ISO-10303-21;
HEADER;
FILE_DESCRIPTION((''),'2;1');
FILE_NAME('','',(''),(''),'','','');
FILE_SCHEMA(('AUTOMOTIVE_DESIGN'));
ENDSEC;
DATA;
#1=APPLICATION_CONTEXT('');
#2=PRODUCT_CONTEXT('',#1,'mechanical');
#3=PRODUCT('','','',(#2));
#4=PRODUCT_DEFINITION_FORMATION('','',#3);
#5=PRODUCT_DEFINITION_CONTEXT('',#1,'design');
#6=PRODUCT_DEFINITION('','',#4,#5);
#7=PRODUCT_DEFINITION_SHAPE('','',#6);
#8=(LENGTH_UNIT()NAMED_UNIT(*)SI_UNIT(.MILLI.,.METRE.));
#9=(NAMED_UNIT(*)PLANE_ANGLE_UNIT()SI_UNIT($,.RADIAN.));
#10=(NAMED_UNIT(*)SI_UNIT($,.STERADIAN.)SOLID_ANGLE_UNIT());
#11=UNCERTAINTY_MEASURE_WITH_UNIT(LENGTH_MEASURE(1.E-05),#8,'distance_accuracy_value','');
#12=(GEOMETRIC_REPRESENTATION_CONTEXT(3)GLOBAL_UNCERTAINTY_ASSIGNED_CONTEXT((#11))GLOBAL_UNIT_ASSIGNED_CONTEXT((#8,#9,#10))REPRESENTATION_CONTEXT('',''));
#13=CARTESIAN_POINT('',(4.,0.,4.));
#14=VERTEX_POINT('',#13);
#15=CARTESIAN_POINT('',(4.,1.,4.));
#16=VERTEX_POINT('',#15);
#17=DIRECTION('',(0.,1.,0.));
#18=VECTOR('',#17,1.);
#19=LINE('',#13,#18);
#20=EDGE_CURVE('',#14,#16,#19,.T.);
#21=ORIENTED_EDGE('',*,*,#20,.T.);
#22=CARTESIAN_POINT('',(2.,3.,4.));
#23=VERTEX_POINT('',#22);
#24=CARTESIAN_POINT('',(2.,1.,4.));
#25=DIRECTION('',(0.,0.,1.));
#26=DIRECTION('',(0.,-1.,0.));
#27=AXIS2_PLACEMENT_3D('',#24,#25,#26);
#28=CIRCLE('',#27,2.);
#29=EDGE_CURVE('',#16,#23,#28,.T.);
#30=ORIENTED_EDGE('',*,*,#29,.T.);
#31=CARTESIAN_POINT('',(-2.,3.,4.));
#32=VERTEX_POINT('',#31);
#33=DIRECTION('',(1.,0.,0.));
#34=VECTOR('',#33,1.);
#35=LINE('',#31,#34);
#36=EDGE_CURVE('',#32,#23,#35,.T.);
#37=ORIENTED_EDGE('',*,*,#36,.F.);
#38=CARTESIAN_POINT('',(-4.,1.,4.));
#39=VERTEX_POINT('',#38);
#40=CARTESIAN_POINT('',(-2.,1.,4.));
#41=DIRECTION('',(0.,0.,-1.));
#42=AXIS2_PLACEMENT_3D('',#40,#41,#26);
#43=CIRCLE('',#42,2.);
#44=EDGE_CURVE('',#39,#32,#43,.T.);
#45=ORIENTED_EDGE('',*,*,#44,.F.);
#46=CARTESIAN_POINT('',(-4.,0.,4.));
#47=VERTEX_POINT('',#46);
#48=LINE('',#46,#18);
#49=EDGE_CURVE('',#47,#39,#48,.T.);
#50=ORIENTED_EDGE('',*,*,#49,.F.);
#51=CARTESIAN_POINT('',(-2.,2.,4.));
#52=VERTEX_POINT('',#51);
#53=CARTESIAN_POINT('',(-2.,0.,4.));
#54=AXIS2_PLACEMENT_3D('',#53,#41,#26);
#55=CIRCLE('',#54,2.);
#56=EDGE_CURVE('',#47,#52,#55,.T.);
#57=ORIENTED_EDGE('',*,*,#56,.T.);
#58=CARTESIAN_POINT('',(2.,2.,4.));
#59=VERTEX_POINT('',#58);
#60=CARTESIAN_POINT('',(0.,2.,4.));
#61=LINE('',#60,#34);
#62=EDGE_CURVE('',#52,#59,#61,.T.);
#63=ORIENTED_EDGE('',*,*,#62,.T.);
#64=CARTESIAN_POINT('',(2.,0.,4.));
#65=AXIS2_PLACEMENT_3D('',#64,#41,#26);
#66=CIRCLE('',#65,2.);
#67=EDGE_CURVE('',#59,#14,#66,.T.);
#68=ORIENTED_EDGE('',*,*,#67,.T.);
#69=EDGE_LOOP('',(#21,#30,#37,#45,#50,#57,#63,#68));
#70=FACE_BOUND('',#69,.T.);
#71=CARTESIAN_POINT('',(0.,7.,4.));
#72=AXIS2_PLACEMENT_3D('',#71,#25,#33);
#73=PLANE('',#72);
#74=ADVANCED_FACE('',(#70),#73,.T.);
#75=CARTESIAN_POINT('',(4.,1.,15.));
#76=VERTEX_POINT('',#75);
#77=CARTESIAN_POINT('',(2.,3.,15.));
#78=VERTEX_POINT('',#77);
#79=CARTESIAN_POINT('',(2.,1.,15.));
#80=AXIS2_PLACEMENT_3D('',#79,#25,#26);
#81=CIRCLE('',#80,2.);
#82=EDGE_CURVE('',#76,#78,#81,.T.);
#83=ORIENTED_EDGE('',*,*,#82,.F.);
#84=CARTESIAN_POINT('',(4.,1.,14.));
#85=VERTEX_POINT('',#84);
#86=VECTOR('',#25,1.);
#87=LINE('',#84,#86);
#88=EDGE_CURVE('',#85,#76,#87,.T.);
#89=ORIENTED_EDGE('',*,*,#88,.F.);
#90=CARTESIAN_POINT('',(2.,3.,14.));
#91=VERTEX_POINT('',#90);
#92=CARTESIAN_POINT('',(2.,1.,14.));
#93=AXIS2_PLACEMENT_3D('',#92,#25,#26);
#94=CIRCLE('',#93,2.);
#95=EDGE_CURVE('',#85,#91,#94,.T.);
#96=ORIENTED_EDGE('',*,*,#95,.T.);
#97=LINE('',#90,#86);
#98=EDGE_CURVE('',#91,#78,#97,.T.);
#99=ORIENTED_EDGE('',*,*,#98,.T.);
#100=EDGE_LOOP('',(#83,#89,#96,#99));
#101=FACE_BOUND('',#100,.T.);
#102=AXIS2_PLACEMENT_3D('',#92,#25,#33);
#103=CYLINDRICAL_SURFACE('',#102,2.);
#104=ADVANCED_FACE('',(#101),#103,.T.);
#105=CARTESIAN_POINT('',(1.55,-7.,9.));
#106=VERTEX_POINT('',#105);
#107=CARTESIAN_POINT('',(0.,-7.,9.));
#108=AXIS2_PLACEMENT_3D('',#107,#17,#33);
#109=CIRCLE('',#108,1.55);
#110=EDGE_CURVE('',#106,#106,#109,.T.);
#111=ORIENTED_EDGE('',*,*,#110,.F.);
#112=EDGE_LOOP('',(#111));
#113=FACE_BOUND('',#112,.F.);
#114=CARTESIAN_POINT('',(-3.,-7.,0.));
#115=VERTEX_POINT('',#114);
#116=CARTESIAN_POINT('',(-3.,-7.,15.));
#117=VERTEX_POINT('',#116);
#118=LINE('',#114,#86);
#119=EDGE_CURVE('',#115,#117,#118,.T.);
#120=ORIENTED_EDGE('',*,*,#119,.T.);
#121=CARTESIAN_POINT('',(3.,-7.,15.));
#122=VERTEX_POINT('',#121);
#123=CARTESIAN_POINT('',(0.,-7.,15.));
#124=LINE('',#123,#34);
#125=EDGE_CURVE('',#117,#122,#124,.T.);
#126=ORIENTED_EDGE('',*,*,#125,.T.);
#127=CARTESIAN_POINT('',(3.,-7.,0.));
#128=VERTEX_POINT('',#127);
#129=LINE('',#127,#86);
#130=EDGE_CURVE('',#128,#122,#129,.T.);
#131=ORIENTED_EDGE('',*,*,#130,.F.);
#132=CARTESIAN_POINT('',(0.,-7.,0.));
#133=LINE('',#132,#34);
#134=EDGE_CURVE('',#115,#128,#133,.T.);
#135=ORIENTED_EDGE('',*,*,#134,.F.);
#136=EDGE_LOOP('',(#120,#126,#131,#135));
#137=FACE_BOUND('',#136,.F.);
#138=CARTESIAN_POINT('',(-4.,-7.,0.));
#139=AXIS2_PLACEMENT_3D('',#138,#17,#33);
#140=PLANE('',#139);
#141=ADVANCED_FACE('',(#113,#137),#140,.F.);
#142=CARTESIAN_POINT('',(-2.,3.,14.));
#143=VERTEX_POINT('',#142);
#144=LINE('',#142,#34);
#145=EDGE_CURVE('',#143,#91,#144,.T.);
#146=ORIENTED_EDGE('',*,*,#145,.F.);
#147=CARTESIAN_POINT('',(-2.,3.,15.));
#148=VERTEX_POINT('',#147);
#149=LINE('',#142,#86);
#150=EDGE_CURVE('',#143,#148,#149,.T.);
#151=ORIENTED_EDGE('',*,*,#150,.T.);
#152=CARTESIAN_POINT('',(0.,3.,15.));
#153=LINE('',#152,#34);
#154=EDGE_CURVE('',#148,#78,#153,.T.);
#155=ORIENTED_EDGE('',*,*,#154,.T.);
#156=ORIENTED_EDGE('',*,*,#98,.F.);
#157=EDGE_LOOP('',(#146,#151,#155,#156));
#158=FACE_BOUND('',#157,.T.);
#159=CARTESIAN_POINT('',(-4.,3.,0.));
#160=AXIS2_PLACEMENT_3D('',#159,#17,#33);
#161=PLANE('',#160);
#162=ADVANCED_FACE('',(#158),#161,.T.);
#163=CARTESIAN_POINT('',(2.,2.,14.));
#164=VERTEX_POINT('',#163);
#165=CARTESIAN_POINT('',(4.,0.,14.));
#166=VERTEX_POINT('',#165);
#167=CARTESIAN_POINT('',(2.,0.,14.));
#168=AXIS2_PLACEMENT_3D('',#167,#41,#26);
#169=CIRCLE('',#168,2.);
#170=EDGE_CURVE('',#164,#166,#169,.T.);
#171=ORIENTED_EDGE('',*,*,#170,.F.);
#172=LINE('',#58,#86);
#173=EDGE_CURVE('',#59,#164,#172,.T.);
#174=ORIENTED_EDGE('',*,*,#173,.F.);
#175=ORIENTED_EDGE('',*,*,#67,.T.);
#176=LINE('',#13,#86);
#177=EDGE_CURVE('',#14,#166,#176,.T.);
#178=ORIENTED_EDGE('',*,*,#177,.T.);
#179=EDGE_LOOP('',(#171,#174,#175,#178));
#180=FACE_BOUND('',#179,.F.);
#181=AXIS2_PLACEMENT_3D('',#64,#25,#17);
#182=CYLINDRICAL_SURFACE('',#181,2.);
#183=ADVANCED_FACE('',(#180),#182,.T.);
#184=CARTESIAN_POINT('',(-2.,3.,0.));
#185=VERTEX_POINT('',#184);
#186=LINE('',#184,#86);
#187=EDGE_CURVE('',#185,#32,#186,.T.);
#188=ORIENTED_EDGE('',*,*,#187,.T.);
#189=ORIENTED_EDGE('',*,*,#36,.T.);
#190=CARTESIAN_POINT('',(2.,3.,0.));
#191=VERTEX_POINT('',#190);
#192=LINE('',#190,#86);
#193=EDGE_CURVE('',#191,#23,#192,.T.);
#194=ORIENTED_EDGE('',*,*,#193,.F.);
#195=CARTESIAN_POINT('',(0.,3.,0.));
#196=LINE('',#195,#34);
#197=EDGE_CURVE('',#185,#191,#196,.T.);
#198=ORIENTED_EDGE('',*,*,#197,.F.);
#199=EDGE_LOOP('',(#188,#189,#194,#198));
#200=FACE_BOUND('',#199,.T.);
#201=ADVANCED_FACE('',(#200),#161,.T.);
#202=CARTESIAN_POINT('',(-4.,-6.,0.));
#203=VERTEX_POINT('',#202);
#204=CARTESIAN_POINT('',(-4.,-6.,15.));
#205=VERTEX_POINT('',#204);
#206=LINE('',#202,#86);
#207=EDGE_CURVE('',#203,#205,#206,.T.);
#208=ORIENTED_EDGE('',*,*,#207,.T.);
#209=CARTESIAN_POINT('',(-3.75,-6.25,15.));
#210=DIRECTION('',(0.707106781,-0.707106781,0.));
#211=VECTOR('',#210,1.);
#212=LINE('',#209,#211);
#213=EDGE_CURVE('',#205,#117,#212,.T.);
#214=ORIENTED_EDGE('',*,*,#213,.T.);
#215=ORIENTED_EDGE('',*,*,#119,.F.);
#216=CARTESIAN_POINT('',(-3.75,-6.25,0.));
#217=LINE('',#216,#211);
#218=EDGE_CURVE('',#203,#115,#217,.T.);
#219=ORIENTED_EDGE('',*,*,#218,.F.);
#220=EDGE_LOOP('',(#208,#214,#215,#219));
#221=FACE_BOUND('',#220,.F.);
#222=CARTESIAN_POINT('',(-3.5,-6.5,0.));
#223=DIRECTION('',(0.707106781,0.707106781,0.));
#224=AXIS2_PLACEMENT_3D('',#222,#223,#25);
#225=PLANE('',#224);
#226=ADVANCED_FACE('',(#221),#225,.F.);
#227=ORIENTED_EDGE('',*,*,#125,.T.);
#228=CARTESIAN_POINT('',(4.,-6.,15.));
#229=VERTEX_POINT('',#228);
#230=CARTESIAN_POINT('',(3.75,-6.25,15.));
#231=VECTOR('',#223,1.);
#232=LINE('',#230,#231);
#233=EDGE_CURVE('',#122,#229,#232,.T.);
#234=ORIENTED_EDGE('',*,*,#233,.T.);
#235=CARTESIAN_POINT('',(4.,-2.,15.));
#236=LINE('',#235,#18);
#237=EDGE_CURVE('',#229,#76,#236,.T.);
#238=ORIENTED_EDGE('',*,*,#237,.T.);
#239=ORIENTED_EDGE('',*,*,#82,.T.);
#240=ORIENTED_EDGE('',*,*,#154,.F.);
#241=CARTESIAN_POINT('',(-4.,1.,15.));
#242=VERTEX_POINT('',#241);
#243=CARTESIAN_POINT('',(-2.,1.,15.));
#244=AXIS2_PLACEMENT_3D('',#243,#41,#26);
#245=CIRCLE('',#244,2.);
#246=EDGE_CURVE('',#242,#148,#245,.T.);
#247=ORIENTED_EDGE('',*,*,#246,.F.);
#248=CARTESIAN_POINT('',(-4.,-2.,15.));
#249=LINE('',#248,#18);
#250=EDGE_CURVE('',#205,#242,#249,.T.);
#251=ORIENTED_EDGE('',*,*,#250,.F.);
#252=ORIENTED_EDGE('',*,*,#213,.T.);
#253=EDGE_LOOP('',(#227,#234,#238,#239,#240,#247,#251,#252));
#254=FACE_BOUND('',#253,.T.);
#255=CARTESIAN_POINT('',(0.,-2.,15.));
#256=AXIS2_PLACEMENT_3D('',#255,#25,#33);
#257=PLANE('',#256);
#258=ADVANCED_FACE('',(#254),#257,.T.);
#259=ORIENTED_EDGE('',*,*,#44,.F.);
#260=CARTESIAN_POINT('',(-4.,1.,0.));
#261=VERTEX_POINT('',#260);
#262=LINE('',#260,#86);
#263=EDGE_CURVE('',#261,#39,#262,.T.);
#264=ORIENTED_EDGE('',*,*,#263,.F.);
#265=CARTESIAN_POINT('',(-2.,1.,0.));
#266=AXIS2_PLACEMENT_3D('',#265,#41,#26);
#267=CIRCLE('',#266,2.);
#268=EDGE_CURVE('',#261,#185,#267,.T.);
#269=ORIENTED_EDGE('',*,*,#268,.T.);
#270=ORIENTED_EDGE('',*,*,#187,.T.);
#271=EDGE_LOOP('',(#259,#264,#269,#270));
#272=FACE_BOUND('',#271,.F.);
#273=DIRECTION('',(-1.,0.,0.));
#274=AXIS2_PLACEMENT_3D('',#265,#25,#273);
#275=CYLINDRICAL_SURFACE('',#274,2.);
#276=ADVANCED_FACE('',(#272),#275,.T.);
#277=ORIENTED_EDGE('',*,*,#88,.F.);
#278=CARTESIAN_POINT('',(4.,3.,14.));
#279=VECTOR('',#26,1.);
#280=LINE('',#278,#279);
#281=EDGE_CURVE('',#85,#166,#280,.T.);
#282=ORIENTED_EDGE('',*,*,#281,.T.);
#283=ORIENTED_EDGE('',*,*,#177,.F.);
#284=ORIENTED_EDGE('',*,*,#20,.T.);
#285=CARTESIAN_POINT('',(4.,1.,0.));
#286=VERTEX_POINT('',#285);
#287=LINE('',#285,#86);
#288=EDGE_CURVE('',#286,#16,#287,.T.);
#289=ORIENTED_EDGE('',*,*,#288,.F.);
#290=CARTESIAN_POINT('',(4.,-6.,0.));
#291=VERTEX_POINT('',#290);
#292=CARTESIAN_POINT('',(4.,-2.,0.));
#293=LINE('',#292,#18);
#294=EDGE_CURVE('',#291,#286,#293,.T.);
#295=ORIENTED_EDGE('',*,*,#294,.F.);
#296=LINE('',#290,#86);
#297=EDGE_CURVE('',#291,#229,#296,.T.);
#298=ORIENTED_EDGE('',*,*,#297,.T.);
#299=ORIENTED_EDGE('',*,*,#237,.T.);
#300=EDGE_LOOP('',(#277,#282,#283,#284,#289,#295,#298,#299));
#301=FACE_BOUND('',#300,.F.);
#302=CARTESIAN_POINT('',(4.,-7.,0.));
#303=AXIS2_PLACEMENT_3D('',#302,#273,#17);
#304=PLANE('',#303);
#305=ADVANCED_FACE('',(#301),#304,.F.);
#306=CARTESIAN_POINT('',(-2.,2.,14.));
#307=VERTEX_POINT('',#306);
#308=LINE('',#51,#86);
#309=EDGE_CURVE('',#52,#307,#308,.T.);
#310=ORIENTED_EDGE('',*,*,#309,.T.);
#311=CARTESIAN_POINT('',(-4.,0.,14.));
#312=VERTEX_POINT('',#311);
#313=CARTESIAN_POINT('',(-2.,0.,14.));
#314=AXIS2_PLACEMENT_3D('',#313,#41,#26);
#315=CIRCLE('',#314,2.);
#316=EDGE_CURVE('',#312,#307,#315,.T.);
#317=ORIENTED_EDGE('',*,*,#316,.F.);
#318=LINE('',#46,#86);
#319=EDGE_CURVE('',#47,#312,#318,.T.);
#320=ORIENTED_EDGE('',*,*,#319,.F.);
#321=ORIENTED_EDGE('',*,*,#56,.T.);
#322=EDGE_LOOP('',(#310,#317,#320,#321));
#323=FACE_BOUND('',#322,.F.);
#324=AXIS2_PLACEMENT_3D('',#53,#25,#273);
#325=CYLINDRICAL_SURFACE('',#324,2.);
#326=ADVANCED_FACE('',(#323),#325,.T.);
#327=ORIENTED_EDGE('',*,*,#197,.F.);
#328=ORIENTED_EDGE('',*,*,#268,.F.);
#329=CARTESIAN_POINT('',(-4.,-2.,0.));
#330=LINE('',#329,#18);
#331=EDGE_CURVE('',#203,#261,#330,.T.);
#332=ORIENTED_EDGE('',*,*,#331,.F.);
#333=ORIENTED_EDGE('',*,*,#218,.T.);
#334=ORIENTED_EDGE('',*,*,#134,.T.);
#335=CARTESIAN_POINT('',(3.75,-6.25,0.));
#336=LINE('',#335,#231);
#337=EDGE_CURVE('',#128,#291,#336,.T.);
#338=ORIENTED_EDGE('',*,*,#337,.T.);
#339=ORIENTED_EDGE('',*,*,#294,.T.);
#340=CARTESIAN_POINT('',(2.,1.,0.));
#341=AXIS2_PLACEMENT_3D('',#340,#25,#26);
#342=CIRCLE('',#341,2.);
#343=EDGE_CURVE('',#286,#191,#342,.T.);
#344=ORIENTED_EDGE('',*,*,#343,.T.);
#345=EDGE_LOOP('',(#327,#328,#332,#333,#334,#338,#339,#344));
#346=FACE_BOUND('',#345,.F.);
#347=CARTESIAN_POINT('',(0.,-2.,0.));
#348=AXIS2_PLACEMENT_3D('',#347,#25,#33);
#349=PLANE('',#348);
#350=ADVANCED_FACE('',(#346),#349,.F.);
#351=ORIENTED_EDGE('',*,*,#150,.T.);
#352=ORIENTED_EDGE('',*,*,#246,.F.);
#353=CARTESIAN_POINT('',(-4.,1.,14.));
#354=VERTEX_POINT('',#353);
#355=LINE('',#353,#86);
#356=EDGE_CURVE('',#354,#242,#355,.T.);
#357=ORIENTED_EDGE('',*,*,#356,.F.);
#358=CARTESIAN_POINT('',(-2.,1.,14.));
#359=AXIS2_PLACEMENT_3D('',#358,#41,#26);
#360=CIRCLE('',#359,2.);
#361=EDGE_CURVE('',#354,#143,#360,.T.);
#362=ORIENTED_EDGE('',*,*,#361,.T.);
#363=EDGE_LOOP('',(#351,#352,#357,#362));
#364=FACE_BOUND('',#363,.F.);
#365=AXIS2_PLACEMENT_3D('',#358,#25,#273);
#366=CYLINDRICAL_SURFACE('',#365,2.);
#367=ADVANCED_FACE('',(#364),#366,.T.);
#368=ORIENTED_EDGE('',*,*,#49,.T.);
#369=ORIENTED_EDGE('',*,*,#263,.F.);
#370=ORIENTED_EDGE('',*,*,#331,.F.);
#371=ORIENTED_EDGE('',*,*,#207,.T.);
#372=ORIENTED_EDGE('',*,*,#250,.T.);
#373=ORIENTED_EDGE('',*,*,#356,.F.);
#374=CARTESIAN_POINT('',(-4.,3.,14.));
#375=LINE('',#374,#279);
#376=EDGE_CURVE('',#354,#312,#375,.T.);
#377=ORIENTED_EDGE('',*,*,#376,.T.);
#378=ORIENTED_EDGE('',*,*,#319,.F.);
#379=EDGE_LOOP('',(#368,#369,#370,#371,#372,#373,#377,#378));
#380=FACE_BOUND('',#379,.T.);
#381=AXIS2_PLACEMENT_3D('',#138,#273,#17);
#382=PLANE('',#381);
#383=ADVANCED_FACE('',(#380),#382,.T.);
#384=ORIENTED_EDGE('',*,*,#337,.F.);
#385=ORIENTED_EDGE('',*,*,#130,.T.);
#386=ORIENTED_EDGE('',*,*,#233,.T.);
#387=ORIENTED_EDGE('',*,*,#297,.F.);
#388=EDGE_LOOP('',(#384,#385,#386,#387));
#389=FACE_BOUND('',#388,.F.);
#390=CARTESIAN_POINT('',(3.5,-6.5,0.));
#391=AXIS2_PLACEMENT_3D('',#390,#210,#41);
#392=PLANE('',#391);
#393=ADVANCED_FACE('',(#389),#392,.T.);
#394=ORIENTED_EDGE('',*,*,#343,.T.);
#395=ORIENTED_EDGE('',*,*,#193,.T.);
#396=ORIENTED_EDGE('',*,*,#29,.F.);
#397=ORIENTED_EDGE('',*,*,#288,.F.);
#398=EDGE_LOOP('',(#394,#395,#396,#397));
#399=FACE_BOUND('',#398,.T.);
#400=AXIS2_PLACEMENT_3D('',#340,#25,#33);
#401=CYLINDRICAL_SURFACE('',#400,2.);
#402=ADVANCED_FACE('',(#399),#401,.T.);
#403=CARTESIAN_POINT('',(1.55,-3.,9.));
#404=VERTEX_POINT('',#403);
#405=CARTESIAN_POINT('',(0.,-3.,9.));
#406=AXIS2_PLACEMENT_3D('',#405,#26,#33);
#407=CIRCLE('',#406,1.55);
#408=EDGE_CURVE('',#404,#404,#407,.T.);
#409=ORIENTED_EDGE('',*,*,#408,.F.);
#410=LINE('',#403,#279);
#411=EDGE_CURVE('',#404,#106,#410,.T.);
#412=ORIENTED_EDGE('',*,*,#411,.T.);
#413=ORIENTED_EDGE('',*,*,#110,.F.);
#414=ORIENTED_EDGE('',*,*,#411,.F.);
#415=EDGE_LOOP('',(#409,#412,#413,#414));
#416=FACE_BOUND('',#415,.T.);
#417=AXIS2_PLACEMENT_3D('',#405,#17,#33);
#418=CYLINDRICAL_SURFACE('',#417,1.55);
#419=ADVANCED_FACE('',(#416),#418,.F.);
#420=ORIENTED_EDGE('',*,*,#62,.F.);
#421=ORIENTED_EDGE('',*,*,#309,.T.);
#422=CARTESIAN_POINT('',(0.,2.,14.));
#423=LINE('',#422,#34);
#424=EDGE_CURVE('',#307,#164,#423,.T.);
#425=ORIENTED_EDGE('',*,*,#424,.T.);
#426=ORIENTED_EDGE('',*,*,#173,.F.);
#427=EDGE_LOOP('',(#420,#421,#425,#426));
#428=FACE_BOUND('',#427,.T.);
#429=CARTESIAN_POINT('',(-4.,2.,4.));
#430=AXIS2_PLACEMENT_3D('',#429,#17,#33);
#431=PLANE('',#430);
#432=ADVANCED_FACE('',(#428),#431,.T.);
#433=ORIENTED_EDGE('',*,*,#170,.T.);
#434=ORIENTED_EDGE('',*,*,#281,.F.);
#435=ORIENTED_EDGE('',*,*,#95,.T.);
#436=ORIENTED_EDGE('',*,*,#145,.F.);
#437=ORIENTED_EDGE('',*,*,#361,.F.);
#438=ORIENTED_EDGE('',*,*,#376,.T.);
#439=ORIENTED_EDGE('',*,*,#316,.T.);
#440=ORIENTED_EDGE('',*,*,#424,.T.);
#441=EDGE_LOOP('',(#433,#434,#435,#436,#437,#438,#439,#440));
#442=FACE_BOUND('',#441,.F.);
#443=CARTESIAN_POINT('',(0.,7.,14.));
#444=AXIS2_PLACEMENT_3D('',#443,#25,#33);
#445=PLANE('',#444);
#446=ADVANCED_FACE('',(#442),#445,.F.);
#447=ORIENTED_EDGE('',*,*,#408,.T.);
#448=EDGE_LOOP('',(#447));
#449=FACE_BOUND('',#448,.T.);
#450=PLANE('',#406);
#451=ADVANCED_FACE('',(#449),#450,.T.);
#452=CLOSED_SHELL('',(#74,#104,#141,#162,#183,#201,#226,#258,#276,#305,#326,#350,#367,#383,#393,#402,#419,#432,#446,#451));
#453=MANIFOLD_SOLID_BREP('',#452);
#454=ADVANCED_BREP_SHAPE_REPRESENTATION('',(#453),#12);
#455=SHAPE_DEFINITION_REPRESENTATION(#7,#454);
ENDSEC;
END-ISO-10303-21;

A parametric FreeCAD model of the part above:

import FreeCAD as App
import Part
import Sketcher
from FreeCAD import Vector
Q = App.Units.Quantity


def edges_at(feature, points):
    """Names of the edges that pass closest to the given points."""
    edges = feature.Shape.Edges
    near = lambda p: min(range(len(edges)), key=lambda i: edges[i].distToShape(Part.Vertex(*p))[0])
    return sorted({f"Edge{near(p) + 1}" for p in points})


def add_polygon(sketch, points):
    """Adds a closed chain of lines whose ends are joined by coincident constraints."""
    first, n = sketch.GeometryCount, len(points)
    for a, b in zip(points, points[1:] + points[:1]):
        sketch.addGeometry(Part.LineSegment(App.Vector(*a, 0), App.Vector(*b, 0)), False)
    for i in range(n):
        sketch.addConstraint(Sketcher.Constraint("Coincident", first + i, 2, first + (i + 1) % n, 1))

doc = App.newDocument("Part")
body = doc.addObject("PartDesign::Body", "Body")

sketch1 = doc.addObject("Sketcher::SketchObject", "Sketch")
body.addObject(sketch1)
sketch1.AttachmentSupport = (doc.XZ_Plane, [""])
sketch1.MapMode = "FlatFace"
sketch1.addGeometry(Part.Circle(Vector(0, 9, 0), Vector(0, 0, 1), 1.6), False)
sketch1.addConstraint([
    Sketcher.Constraint("PointOnObject", 0, 3, -2),
    Sketcher.Constraint("Diameter", 0, Q("3.1 mm")),
    Sketcher.Constraint("DistanceY", -1, 1, 0, 3, Q("9 mm")),
])
pad1 = doc.addObject("PartDesign::Pad", "Pad")
body.addObject(pad1)
pad1.Profile = sketch1
pad1.Length = 67
body2 = doc.addObject("PartDesign::Body", "Body001")

sketch2 = doc.addObject("Sketcher::SketchObject", "Sketch001")
body2.addObject(sketch2)
sketch2.AttachmentSupport = (doc.getObject("XY_Plane001"), [""])
sketch2.MapMode = "FlatFace"
sketch2.AttachmentOffset = App.Placement(Vector(0, 0, 4), App.Rotation())
add_polygon(sketch2, [(-4, 15), (-4, 5), (4, 5), (4, 15)])
sketch2.addConstraint([
    Sketcher.Constraint("Vertical", 0),
    Sketcher.Constraint("Horizontal", 1),
    Sketcher.Constraint("Vertical", 2),
    Sketcher.Constraint("Horizontal", 3),
    Sketcher.Constraint("DistanceX", 1, 1, 1, 2, Q("8 mm")),
    Sketcher.Constraint("DistanceY", 0, 2, 0, 1, Q("10 mm")),
    Sketcher.Constraint("DistanceX", 0, 2, -1, 1, Q("4 mm")),
    Sketcher.Constraint("DistanceY", -1, 1, 0, 2, Q("5 mm")),
])
pad2 = doc.addObject("PartDesign::Pad", "Pad001")
body2.addObject(pad2)
pad2.Profile = sketch2
pad2.Length = 10
body3 = doc.addObject("PartDesign::Body", "Body002")

sketch3 = doc.addObject("Sketcher::SketchObject", "Sketch002")
body3.addObject(sketch3)
sketch3.AttachmentSupport = (doc.getObject("XY_Plane002"), [""])
sketch3.MapMode = "FlatFace"
add_polygon(sketch3, [(-4, 6), (-4, -4), (4, -4), (4, 6)])
sketch3.addConstraint([
    Sketcher.Constraint("Vertical", 0),
    Sketcher.Constraint("Horizontal", 1),
    Sketcher.Constraint("Vertical", 2),
    Sketcher.Constraint("Horizontal", 3),
    Sketcher.Constraint("DistanceX", 1, 1, 1, 2, Q("8 mm")),
    Sketcher.Constraint("DistanceY", 0, 2, 0, 1, Q("10 mm")),
    Sketcher.Constraint("DistanceX", 0, 2, -1, 1, Q("4 mm")),
    Sketcher.Constraint("DistanceY", 0, 2, -1, 1, Q("4 mm")),
])
pad3 = doc.addObject("PartDesign::Pad", "Pad002")
body3.addObject(pad3)
pad3.Profile = sketch3
pad3.Length = 15
doc.recompute()

boolean = doc.addObject("PartDesign::Boolean", "Boolean")
body3.addObject(boolean)
boolean.Type = "Cut"
boolean.addObjects([body2])
doc.recompute()

fillet = doc.addObject("PartDesign::Fillet", "Fillet")
body3.addObject(fillet)
fillet.Base = (boolean, edges_at(boolean, [(-4, 5, 9), (4, 5, 9)]))
fillet.Radius = 2
doc.recompute()

fillet2 = doc.addObject("PartDesign::Fillet", "Fillet001")
body3.addObject(fillet2)
fillet2.Base = (fillet, edges_at(fillet, [
    (-4, 6, 2),
    (-4, 6, 14.5),
    (4, 6, 2),
    (4, 6, 14.5),
]))
fillet2.Radius = 2
doc.recompute()

boolean2 = doc.addObject("PartDesign::Boolean", "Boolean001")
body3.addObject(boolean2)
boolean2.Type = "Cut"
boolean2.addObjects([body])
body4 = doc.addObject("PartDesign::Body", "Body003")
doc.recompute()

body3.Placement = App.Placement(Vector(0, -3, 0), App.Rotation(Vector(0, 0, 1), 0))
boolean3 = doc.addObject("PartDesign::Boolean", "Boolean002")
body4.addObject(boolean3)
boolean3.Type = "Fuse"
boolean3.addObjects([body3])
doc.recompute()

chamfer = doc.addObject("PartDesign::Chamfer", "Chamfer")
body4.addObject(chamfer)
chamfer.Base = (boolean3, edges_at(boolean3, [(-4, -7, 7.5), (4, -7, 7.5)]))
chamfer.Size = 1

doc.recompute()
